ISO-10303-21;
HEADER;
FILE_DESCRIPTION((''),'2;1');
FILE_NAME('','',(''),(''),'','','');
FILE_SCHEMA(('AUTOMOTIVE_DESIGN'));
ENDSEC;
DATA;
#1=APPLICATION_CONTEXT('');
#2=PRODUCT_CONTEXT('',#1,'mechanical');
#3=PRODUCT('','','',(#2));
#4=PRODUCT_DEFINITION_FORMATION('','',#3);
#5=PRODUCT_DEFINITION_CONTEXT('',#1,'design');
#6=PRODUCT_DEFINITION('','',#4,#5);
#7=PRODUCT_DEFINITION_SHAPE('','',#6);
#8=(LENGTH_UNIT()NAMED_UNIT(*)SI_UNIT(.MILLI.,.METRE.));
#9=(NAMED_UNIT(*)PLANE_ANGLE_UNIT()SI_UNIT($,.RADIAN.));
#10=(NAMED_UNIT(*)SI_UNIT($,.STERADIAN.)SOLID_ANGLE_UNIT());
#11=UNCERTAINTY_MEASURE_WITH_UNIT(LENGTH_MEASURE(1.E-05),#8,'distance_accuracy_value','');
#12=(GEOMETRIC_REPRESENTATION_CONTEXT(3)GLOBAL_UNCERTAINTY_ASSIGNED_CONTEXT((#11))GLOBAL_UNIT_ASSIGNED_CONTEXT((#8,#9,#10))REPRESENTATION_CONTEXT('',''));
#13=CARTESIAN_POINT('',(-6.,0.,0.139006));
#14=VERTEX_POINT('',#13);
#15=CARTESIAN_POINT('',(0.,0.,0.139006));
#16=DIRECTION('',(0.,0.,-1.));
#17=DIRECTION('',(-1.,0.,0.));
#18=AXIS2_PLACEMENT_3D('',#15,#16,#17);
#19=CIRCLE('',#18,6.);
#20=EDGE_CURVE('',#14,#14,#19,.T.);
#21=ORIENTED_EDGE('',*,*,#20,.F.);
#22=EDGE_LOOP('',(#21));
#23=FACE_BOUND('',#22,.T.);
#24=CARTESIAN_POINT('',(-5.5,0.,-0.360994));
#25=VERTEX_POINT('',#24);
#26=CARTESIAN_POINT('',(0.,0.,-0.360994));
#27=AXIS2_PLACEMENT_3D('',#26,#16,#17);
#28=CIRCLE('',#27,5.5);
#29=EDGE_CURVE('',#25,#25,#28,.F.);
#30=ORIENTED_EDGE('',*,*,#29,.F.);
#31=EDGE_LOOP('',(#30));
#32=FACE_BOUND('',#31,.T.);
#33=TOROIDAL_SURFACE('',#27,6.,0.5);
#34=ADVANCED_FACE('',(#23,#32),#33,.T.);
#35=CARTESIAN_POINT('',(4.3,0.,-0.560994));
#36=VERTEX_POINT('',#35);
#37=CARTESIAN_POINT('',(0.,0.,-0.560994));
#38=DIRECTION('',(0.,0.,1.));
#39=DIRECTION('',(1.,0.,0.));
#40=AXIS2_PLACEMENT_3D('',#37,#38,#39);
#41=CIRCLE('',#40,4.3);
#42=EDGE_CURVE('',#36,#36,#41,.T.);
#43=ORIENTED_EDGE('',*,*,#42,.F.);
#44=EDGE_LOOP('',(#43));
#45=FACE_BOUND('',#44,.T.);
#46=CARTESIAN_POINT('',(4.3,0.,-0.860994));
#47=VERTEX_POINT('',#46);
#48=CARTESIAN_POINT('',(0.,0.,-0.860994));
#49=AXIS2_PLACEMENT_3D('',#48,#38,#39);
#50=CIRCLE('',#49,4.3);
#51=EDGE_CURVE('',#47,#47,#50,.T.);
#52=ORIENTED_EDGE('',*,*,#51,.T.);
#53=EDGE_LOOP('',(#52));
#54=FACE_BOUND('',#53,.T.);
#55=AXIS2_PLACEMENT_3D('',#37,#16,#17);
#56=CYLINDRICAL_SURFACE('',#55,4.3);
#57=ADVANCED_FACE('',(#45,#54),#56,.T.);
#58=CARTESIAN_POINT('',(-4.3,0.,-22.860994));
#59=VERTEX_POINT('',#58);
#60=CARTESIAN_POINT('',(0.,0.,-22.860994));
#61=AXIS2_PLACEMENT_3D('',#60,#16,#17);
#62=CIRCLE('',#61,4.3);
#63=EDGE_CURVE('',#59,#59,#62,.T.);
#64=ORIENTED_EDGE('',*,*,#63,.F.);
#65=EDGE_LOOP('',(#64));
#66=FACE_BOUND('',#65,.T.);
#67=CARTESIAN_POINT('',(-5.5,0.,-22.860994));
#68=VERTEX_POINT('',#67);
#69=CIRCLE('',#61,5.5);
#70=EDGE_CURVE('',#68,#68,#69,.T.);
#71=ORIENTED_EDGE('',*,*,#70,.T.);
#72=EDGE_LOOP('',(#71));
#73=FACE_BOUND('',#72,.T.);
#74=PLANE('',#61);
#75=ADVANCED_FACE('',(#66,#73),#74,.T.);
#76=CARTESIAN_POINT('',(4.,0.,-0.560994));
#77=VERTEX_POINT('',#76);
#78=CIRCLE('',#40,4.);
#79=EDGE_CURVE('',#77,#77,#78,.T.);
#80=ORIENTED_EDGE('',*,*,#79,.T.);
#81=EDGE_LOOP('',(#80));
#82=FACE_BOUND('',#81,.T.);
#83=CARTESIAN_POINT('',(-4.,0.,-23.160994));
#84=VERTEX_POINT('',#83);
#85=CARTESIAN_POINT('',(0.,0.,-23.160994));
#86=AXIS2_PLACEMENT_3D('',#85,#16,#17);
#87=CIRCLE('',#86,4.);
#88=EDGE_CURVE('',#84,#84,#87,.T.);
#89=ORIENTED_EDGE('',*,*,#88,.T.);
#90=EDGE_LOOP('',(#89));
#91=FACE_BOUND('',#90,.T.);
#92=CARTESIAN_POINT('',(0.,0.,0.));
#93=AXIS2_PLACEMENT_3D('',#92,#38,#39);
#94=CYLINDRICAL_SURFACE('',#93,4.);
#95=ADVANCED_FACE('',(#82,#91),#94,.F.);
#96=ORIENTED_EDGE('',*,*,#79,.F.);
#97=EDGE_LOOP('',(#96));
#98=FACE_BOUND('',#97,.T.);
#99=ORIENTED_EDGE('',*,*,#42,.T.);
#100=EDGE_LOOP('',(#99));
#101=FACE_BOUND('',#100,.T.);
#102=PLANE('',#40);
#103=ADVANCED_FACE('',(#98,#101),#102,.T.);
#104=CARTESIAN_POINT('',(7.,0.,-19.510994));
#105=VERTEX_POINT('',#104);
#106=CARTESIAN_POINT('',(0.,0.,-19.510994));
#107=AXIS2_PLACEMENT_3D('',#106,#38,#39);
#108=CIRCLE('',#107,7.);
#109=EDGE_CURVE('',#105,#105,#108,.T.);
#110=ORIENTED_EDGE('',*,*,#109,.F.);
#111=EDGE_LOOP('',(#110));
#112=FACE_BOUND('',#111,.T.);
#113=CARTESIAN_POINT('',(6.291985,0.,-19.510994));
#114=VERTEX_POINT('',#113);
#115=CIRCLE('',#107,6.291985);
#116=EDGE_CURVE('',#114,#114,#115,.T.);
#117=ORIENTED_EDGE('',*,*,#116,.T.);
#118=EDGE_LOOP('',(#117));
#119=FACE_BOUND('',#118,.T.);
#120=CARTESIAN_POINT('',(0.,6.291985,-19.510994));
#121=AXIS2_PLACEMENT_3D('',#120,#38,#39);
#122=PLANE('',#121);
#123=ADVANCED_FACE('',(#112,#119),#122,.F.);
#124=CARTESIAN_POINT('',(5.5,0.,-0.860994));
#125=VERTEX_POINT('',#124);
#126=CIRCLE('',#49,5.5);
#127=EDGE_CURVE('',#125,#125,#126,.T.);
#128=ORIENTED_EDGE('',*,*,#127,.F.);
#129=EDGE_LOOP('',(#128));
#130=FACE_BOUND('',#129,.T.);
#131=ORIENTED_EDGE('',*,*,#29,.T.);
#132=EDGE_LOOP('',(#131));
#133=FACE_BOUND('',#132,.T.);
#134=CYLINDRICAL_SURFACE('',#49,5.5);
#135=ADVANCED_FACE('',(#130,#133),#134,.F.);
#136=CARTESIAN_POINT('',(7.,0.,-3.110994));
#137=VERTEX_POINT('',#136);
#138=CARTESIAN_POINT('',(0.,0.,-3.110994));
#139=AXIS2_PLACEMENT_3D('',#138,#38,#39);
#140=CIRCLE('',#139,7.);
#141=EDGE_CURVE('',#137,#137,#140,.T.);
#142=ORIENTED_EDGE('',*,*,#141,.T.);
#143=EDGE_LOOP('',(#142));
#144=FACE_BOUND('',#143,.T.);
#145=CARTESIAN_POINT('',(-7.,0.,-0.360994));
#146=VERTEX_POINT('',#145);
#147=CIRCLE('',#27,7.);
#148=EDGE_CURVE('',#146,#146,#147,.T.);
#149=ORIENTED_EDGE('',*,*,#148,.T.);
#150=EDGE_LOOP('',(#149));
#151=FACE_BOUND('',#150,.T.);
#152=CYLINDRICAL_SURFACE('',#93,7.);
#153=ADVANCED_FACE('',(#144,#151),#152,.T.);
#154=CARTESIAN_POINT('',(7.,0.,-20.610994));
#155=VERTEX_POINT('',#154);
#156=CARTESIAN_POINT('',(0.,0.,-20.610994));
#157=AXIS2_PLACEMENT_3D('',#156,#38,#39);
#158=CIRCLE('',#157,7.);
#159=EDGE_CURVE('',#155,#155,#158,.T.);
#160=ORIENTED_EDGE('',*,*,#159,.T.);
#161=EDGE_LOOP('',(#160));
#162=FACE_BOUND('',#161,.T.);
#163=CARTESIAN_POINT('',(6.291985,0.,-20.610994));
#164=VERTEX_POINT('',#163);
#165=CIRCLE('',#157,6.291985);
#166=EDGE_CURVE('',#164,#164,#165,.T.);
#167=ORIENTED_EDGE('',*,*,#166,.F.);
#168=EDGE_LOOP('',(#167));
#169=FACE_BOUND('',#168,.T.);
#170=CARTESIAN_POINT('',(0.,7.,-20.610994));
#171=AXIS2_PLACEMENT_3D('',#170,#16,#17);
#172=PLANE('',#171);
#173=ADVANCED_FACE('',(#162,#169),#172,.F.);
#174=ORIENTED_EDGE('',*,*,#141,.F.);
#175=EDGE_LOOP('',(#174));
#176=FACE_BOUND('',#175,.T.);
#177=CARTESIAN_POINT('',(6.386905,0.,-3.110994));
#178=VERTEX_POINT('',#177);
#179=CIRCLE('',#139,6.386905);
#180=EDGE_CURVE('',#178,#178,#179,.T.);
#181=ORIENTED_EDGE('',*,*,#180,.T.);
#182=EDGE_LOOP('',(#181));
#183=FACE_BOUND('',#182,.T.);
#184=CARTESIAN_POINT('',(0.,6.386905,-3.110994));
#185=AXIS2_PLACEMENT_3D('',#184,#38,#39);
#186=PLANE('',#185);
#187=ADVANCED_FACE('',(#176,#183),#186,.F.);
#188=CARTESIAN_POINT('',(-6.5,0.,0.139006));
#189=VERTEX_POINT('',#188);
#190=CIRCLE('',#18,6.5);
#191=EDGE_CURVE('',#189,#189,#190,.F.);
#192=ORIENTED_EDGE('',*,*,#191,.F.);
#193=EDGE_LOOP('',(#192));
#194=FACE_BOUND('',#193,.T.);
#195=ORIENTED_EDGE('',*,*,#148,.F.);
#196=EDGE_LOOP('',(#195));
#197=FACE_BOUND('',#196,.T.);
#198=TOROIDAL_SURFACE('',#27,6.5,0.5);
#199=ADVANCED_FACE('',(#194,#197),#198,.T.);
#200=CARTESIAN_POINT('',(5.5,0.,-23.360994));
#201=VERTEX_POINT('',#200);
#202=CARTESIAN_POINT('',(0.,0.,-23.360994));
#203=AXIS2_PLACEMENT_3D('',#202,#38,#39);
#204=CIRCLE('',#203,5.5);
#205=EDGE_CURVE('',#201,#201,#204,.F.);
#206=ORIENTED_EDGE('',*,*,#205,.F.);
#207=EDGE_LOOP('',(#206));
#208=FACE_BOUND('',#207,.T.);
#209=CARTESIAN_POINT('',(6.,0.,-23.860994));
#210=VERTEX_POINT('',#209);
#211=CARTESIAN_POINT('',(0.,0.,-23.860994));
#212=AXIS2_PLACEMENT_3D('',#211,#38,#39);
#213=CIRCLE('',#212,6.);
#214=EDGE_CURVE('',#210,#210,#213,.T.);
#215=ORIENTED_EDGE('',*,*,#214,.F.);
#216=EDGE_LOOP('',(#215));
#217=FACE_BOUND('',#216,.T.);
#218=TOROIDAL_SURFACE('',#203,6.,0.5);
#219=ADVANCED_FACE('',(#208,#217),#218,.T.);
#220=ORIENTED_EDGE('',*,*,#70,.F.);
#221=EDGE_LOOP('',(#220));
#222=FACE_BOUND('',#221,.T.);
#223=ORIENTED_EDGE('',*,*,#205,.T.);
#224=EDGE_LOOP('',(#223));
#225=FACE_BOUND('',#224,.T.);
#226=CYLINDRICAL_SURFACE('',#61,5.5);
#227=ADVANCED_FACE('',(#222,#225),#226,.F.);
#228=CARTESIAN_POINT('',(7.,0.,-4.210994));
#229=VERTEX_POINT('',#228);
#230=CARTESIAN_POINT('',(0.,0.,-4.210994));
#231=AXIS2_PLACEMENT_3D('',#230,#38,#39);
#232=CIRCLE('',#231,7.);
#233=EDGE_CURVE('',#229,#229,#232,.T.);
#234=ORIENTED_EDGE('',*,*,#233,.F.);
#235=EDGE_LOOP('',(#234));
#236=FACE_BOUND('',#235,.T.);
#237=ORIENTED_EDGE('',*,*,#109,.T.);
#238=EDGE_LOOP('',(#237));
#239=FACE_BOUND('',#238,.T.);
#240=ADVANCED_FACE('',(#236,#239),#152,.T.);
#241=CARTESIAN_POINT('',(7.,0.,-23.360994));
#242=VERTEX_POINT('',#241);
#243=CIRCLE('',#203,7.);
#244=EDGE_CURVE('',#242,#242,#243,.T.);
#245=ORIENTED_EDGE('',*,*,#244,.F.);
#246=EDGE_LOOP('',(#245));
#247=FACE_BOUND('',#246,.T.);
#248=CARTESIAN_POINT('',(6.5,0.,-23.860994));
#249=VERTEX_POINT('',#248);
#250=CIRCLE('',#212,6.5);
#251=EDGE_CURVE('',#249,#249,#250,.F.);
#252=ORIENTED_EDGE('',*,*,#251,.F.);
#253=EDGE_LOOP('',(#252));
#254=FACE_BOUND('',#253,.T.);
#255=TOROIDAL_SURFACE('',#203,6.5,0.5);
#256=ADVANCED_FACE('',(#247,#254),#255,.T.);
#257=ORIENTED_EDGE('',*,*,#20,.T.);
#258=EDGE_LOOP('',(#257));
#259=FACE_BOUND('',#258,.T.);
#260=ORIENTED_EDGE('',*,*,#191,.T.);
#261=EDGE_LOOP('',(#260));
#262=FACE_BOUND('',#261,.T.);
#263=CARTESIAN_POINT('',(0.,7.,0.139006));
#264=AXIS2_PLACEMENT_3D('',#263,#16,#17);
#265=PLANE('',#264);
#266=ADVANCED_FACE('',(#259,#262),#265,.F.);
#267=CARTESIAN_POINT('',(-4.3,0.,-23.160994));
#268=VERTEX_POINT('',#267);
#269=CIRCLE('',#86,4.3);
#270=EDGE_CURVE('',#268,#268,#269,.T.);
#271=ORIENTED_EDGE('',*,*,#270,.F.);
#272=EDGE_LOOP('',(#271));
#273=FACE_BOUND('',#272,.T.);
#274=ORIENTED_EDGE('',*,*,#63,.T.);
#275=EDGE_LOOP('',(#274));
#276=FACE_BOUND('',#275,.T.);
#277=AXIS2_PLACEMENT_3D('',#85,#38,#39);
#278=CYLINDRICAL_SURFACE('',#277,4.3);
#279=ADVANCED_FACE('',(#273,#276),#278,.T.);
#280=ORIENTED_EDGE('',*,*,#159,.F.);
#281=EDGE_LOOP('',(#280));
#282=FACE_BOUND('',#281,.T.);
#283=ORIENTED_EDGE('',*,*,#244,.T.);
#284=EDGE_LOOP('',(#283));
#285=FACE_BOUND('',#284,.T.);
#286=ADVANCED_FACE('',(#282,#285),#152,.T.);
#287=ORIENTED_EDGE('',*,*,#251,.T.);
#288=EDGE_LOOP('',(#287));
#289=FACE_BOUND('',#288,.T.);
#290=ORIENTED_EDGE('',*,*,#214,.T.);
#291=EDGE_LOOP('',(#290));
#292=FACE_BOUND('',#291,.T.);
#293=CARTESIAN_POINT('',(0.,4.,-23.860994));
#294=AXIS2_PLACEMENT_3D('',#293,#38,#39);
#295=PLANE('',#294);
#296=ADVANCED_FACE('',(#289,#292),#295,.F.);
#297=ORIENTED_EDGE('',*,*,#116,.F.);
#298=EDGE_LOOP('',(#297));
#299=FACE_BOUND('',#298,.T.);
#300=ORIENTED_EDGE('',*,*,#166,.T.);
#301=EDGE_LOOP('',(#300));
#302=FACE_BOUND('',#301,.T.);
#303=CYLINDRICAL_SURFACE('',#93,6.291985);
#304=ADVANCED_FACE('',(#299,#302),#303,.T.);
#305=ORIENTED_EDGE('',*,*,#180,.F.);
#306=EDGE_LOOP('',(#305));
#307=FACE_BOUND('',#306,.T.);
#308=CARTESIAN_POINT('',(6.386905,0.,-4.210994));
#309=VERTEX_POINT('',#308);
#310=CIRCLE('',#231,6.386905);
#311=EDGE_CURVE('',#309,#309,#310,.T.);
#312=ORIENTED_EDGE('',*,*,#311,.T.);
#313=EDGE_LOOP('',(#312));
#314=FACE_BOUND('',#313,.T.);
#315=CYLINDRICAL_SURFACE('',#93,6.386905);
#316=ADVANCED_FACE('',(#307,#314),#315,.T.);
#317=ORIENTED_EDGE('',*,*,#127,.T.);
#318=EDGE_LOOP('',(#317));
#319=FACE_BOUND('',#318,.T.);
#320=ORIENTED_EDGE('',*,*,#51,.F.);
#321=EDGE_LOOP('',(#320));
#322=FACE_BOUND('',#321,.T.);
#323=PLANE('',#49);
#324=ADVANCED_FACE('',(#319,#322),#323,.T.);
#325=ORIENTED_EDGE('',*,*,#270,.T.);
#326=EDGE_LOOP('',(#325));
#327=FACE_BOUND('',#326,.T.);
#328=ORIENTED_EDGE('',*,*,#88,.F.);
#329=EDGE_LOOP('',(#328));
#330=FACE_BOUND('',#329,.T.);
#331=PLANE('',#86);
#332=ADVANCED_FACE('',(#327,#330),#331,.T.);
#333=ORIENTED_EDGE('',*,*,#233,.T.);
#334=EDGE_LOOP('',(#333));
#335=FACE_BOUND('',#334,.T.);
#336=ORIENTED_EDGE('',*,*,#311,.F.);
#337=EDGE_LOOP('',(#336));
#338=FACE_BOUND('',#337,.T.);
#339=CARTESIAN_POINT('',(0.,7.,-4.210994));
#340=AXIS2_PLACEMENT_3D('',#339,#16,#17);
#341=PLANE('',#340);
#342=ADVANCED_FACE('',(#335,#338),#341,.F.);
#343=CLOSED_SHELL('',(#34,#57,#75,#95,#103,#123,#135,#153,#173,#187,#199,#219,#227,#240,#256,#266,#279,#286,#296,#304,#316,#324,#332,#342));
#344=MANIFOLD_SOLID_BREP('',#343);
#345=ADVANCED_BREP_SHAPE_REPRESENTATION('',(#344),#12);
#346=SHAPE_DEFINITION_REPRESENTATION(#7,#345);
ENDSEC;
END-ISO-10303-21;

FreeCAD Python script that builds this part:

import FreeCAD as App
import Part
import Sketcher
from FreeCAD import Vector
Q = App.Units.Quantity


def edges_at(feature, points):
    """Names of the edges that pass closest to the given points."""
    edges = feature.Shape.Edges
    near = lambda p: min(range(len(edges)), key=lambda i: edges[i].distToShape(Part.Vertex(*p))[0])
    return sorted({f"Edge{near(p) + 1}" for p in points})

doc = App.newDocument("Part")
body = doc.addObject("PartDesign::Body", "Body")

# Sketch on YZ plane
sketch1 = body.newObject("Sketcher::SketchObject", "Sketch")
sketch1.AttachmentSupport = (doc.getObject("YZ_Plane"), [""])
sketch1.MapMode = "FlatFace"
sketch1.addGeometry(Part.LineSegment(Vector(4, 0.139006, 0), Vector(4, -23.860994, 0)), False)
sketch1.addGeometry(Part.LineSegment(Vector(4, -23.860994, 0), Vector(7, -23.860994, 0)), False)
sketch1.addGeometry(Part.LineSegment(Vector(7, -23.860994, 0), Vector(7, -20.610994, 0)), False)
sketch1.addGeometry(Part.LineSegment(Vector(7, -20.610994, 0), Vector(6.291985, -20.610994, 0)), False)
sketch1.addGeometry(Part.LineSegment(Vector(6.291985, -20.610994, 0), Vector(6.291985, -19.510994, 0)), False)
sketch1.addGeometry(Part.LineSegment(Vector(6.291985, -19.510994, 0), Vector(7, -19.510994, 0)), False)
sketch1.addGeometry(Part.LineSegment(Vector(7, -19.510994, 0), Vector(7, -4.210994, 0)), False)
sketch1.addGeometry(Part.LineSegment(Vector(7, -4.210994, 0), Vector(6.386905, -4.210994, 0)), False)
sketch1.addGeometry(Part.LineSegment(Vector(6.386905, -4.210994, 0), Vector(6.386905, -3.110994, 0)), False)
sketch1.addGeometry(Part.LineSegment(Vector(6.386905, -3.110994, 0), Vector(7, -3.110994, 0)), False)
sketch1.addGeometry(Part.LineSegment(Vector(7, -3.110994, 0), Vector(7, 0.139006, 0)), False)
sketch1.addGeometry(Part.LineSegment(Vector(7, 0.139006, 0), Vector(4, 0.139006, 0)), False)
sketch1.addConstraint(Sketcher.Constraint("Coincident", 0, 2, 1, 1))
sketch1.addConstraint(Sketcher.Constraint("Coincident", 1, 2, 2, 1))
sketch1.addConstraint(Sketcher.Constraint("Coincident", 2, 2, 3, 1))
sketch1.addConstraint(Sketcher.Constraint("Coincident", 3, 2, 4, 1))
sketch1.addConstraint(Sketcher.Constraint("Coincident", 4, 2, 5, 1))
sketch1.addConstraint(Sketcher.Constraint("Coincident", 5, 2, 6, 1))
sketch1.addConstraint(Sketcher.Constraint("Coincident", 6, 2, 7, 1))
sketch1.addConstraint(Sketcher.Constraint("Coincident", 7, 2, 8, 1))
sketch1.addConstraint(Sketcher.Constraint("Coincident", 8, 2, 9, 1))
sketch1.addConstraint(Sketcher.Constraint("Coincident", 9, 2, 10, 1))
sketch1.addConstraint(Sketcher.Constraint("Coincident", 10, 2, 11, 1))
sketch1.addConstraint(Sketcher.Constraint("Coincident", 11, 2, 0, 1))
sketch1.addConstraint(Sketcher.Constraint("Vertical", 0))
sketch1.addConstraint(Sketcher.Constraint("Horizontal", 1))
sketch1.addConstraint(Sketcher.Constraint("Vertical", 2))
sketch1.addConstraint(Sketcher.Constraint("Horizontal", 3))
sketch1.addConstraint(Sketcher.Constraint("Vertical", 4))
sketch1.addConstraint(Sketcher.Constraint("Horizontal", 5))
sketch1.addConstraint(Sketcher.Constraint("Vertical", 6))
sketch1.addConstraint(Sketcher.Constraint("Horizontal", 7))
sketch1.addConstraint(Sketcher.Constraint("Vertical", 8))
sketch1.addConstraint(Sketcher.Constraint("Horizontal", 9))
sketch1.addConstraint(Sketcher.Constraint("Vertical", 10))
sketch1.addConstraint(Sketcher.Constraint("Horizontal", 11))
sketch1.addConstraint(Sketcher.Constraint("Vertical", 2, 2, 5, 2))
sketch1.addConstraint(Sketcher.Constraint("Vertical", 6, 2, 9, 2))
sketch1.addConstraint(Sketcher.Constraint("Equal", 4, 8))
sketch1.addConstraint(Sketcher.Constraint("Equal", 2, 10))
sketch1.addConstraint(Sketcher.Constraint("DistanceX", 1, 1, 1, 2, Q("3 mm")))
sketch1.addConstraint(Sketcher.Constraint("DistanceY", 0, 2, 0, 1, Q("24 mm")))
sketch1.addConstraint(Sketcher.Constraint("DistanceY", 4, 1, 4, 2, Q("1.1 mm")))
sketch1.addConstraint(Sketcher.Constraint("DistanceY", 6, 1, 6, 2, Q("15.3 mm")))
sketch1.addConstraint(Sketcher.Constraint("DistanceX", -1, 1, 0, 2, Q("4 mm")))
sketch1.addConstraint(Sketcher.Constraint("DistanceX", 3, 2, 3, 1, Q("0.708015 mm")))
sketch1.addConstraint(Sketcher.Constraint("DistanceX", 7, 2, 7, 1, Q("0.613095 mm")))
sketch1.addConstraint(Sketcher.Constraint("DistanceY", 0, 2, -1, 1, Q("23.860994 mm")))
revolution = body.newObject("PartDesign::Revolution", "Revolution")
revolution.Profile = sketch1
revolution.ReferenceAxis = (sketch1, ["V_Axis"])
revolution.Angle = 360
doc.recompute()

fillet = body.newObject("PartDesign::Fillet", "Fillet")
fillet.Base = (revolution, edges_at(revolution, [(-7, 0, -23.861), (-7, 0, 0.139)]))
fillet.Radius = 0.5

# Sketch on XY plane
sketch2 = body.newObject("Sketcher::SketchObject", "Sketch001")
sketch2.AttachmentSupport = (doc.getObject("XY_Plane"), [""])
sketch2.MapMode = "FlatFace"
sketch2.AttachmentOffset = App.Placement(Vector(0, 0, 0.139006), App.Rotation())
sketch2.addGeometry(Part.Circle(Vector(0, 0, 0), Vector(0, 0, 1), 5.5), False)
sketch2.addConstraint(Sketcher.Constraint("Coincident", 0, 3, -1, 1))
sketch2.addConstraint(Sketcher.Constraint("Diameter", 0, Q("11 mm")))
pocket1 = body.newObject("PartDesign::Pocket", "Pocket")
pocket1.Profile = sketch2
pocket1.Length = 1
doc.recompute()

fillet2 = body.newObject("PartDesign::Fillet", "Fillet001")
fillet2.Base = (pocket1, edges_at(pocket1, [(-5.5, 0, 0.139)]))
fillet2.Radius = 0.5

# Sketch on XY plane
sketch3 = body.newObject("Sketcher::SketchObject", "Sketch002")
sketch3.AttachmentSupport = (doc.getObject("XY_Plane"), [""])
sketch3.MapMode = "FlatFace"
sketch3.AttachmentOffset = App.Placement(Vector(0, 0, -22.860994), App.Rotation())
sketch3.addGeometry(Part.Circle(Vector(0, 0, 0), Vector(0, 0, 1), 5.5), False)
sketch3.addConstraint(Sketcher.Constraint("Coincident", 0, 3, -1, 1))
sketch3.addConstraint(Sketcher.Constraint("Diameter", 0, Q("11 mm")))
pocket2 = body.newObject("PartDesign::Pocket", "Pocket001")
pocket2.Profile = sketch3
pocket2.Length = 1
doc.recompute()

fillet3 = body.newObject("PartDesign::Fillet", "Fillet002")
fillet3.Base = (pocket2, edges_at(pocket2, [(-5.5, 0, -23.861)]))
fillet3.Radius = 0.5

# Sketch on XY plane
sketch4 = body.newObject("Sketcher::SketchObject", "Sketch003")
sketch4.AttachmentSupport = (doc.getObject("XY_Plane"), [""])
sketch4.MapMode = "FlatFace"
sketch4.AttachmentOffset = App.Placement(Vector(0, 0, -0.860994), App.Rotation())
sketch4.addGeometry(Part.Circle(Vector(0, 0, 0), Vector(0, 0, 1), 4.3), False)
sketch4.addGeometry(Part.Circle(Vector(0, 0, 0), Vector(0, 0, 1), 4), False)
sketch4.addConstraint(Sketcher.Constraint("Coincident", 0, 3, -1, 1))
sketch4.addConstraint(Sketcher.Constraint("Coincident", 1, 3, -1, 1))
sketch4.addConstraint(Sketcher.Constraint("Diameter", 1, Q("8 mm")))
sketch4.addConstraint(Sketcher.Constraint("Diameter", 0, Q("8.6 mm")))
pad1 = body.newObject("PartDesign::Pad", "Pad")
pad1.Profile = sketch4
pad1.Length = 0.3

# Sketch on XY plane
sketch5 = body.newObject("Sketcher::SketchObject", "Sketch004")
sketch5.AttachmentSupport = (doc.getObject("XY_Plane"), [""])
sketch5.MapMode = "FlatFace"
sketch5.AttachmentOffset = App.Placement(Vector(0, 0, -23.160994), App.Rotation())
sketch5.addGeometry(Part.Circle(Vector(0, 0, 0), Vector(0, 0, 1), 4.3), False)
sketch5.addGeometry(Part.Circle(Vector(0, 0, 0), Vector(0, 0, 1), 4), False)
sketch5.addConstraint(Sketcher.Constraint("Coincident", 0, 3, -1, 1))
sketch5.addConstraint(Sketcher.Constraint("Coincident", 1, 3, -1, 1))
sketch5.addConstraint(Sketcher.Constraint("Diameter", 1, Q("8 mm")))
sketch5.addConstraint(Sketcher.Constraint("Diameter", 0, Q("8.6 mm")))
pad2 = body.newObject("PartDesign::Pad", "Pad001")
pad2.Profile = sketch5
pad2.Length = 0.3

doc.recompute()
